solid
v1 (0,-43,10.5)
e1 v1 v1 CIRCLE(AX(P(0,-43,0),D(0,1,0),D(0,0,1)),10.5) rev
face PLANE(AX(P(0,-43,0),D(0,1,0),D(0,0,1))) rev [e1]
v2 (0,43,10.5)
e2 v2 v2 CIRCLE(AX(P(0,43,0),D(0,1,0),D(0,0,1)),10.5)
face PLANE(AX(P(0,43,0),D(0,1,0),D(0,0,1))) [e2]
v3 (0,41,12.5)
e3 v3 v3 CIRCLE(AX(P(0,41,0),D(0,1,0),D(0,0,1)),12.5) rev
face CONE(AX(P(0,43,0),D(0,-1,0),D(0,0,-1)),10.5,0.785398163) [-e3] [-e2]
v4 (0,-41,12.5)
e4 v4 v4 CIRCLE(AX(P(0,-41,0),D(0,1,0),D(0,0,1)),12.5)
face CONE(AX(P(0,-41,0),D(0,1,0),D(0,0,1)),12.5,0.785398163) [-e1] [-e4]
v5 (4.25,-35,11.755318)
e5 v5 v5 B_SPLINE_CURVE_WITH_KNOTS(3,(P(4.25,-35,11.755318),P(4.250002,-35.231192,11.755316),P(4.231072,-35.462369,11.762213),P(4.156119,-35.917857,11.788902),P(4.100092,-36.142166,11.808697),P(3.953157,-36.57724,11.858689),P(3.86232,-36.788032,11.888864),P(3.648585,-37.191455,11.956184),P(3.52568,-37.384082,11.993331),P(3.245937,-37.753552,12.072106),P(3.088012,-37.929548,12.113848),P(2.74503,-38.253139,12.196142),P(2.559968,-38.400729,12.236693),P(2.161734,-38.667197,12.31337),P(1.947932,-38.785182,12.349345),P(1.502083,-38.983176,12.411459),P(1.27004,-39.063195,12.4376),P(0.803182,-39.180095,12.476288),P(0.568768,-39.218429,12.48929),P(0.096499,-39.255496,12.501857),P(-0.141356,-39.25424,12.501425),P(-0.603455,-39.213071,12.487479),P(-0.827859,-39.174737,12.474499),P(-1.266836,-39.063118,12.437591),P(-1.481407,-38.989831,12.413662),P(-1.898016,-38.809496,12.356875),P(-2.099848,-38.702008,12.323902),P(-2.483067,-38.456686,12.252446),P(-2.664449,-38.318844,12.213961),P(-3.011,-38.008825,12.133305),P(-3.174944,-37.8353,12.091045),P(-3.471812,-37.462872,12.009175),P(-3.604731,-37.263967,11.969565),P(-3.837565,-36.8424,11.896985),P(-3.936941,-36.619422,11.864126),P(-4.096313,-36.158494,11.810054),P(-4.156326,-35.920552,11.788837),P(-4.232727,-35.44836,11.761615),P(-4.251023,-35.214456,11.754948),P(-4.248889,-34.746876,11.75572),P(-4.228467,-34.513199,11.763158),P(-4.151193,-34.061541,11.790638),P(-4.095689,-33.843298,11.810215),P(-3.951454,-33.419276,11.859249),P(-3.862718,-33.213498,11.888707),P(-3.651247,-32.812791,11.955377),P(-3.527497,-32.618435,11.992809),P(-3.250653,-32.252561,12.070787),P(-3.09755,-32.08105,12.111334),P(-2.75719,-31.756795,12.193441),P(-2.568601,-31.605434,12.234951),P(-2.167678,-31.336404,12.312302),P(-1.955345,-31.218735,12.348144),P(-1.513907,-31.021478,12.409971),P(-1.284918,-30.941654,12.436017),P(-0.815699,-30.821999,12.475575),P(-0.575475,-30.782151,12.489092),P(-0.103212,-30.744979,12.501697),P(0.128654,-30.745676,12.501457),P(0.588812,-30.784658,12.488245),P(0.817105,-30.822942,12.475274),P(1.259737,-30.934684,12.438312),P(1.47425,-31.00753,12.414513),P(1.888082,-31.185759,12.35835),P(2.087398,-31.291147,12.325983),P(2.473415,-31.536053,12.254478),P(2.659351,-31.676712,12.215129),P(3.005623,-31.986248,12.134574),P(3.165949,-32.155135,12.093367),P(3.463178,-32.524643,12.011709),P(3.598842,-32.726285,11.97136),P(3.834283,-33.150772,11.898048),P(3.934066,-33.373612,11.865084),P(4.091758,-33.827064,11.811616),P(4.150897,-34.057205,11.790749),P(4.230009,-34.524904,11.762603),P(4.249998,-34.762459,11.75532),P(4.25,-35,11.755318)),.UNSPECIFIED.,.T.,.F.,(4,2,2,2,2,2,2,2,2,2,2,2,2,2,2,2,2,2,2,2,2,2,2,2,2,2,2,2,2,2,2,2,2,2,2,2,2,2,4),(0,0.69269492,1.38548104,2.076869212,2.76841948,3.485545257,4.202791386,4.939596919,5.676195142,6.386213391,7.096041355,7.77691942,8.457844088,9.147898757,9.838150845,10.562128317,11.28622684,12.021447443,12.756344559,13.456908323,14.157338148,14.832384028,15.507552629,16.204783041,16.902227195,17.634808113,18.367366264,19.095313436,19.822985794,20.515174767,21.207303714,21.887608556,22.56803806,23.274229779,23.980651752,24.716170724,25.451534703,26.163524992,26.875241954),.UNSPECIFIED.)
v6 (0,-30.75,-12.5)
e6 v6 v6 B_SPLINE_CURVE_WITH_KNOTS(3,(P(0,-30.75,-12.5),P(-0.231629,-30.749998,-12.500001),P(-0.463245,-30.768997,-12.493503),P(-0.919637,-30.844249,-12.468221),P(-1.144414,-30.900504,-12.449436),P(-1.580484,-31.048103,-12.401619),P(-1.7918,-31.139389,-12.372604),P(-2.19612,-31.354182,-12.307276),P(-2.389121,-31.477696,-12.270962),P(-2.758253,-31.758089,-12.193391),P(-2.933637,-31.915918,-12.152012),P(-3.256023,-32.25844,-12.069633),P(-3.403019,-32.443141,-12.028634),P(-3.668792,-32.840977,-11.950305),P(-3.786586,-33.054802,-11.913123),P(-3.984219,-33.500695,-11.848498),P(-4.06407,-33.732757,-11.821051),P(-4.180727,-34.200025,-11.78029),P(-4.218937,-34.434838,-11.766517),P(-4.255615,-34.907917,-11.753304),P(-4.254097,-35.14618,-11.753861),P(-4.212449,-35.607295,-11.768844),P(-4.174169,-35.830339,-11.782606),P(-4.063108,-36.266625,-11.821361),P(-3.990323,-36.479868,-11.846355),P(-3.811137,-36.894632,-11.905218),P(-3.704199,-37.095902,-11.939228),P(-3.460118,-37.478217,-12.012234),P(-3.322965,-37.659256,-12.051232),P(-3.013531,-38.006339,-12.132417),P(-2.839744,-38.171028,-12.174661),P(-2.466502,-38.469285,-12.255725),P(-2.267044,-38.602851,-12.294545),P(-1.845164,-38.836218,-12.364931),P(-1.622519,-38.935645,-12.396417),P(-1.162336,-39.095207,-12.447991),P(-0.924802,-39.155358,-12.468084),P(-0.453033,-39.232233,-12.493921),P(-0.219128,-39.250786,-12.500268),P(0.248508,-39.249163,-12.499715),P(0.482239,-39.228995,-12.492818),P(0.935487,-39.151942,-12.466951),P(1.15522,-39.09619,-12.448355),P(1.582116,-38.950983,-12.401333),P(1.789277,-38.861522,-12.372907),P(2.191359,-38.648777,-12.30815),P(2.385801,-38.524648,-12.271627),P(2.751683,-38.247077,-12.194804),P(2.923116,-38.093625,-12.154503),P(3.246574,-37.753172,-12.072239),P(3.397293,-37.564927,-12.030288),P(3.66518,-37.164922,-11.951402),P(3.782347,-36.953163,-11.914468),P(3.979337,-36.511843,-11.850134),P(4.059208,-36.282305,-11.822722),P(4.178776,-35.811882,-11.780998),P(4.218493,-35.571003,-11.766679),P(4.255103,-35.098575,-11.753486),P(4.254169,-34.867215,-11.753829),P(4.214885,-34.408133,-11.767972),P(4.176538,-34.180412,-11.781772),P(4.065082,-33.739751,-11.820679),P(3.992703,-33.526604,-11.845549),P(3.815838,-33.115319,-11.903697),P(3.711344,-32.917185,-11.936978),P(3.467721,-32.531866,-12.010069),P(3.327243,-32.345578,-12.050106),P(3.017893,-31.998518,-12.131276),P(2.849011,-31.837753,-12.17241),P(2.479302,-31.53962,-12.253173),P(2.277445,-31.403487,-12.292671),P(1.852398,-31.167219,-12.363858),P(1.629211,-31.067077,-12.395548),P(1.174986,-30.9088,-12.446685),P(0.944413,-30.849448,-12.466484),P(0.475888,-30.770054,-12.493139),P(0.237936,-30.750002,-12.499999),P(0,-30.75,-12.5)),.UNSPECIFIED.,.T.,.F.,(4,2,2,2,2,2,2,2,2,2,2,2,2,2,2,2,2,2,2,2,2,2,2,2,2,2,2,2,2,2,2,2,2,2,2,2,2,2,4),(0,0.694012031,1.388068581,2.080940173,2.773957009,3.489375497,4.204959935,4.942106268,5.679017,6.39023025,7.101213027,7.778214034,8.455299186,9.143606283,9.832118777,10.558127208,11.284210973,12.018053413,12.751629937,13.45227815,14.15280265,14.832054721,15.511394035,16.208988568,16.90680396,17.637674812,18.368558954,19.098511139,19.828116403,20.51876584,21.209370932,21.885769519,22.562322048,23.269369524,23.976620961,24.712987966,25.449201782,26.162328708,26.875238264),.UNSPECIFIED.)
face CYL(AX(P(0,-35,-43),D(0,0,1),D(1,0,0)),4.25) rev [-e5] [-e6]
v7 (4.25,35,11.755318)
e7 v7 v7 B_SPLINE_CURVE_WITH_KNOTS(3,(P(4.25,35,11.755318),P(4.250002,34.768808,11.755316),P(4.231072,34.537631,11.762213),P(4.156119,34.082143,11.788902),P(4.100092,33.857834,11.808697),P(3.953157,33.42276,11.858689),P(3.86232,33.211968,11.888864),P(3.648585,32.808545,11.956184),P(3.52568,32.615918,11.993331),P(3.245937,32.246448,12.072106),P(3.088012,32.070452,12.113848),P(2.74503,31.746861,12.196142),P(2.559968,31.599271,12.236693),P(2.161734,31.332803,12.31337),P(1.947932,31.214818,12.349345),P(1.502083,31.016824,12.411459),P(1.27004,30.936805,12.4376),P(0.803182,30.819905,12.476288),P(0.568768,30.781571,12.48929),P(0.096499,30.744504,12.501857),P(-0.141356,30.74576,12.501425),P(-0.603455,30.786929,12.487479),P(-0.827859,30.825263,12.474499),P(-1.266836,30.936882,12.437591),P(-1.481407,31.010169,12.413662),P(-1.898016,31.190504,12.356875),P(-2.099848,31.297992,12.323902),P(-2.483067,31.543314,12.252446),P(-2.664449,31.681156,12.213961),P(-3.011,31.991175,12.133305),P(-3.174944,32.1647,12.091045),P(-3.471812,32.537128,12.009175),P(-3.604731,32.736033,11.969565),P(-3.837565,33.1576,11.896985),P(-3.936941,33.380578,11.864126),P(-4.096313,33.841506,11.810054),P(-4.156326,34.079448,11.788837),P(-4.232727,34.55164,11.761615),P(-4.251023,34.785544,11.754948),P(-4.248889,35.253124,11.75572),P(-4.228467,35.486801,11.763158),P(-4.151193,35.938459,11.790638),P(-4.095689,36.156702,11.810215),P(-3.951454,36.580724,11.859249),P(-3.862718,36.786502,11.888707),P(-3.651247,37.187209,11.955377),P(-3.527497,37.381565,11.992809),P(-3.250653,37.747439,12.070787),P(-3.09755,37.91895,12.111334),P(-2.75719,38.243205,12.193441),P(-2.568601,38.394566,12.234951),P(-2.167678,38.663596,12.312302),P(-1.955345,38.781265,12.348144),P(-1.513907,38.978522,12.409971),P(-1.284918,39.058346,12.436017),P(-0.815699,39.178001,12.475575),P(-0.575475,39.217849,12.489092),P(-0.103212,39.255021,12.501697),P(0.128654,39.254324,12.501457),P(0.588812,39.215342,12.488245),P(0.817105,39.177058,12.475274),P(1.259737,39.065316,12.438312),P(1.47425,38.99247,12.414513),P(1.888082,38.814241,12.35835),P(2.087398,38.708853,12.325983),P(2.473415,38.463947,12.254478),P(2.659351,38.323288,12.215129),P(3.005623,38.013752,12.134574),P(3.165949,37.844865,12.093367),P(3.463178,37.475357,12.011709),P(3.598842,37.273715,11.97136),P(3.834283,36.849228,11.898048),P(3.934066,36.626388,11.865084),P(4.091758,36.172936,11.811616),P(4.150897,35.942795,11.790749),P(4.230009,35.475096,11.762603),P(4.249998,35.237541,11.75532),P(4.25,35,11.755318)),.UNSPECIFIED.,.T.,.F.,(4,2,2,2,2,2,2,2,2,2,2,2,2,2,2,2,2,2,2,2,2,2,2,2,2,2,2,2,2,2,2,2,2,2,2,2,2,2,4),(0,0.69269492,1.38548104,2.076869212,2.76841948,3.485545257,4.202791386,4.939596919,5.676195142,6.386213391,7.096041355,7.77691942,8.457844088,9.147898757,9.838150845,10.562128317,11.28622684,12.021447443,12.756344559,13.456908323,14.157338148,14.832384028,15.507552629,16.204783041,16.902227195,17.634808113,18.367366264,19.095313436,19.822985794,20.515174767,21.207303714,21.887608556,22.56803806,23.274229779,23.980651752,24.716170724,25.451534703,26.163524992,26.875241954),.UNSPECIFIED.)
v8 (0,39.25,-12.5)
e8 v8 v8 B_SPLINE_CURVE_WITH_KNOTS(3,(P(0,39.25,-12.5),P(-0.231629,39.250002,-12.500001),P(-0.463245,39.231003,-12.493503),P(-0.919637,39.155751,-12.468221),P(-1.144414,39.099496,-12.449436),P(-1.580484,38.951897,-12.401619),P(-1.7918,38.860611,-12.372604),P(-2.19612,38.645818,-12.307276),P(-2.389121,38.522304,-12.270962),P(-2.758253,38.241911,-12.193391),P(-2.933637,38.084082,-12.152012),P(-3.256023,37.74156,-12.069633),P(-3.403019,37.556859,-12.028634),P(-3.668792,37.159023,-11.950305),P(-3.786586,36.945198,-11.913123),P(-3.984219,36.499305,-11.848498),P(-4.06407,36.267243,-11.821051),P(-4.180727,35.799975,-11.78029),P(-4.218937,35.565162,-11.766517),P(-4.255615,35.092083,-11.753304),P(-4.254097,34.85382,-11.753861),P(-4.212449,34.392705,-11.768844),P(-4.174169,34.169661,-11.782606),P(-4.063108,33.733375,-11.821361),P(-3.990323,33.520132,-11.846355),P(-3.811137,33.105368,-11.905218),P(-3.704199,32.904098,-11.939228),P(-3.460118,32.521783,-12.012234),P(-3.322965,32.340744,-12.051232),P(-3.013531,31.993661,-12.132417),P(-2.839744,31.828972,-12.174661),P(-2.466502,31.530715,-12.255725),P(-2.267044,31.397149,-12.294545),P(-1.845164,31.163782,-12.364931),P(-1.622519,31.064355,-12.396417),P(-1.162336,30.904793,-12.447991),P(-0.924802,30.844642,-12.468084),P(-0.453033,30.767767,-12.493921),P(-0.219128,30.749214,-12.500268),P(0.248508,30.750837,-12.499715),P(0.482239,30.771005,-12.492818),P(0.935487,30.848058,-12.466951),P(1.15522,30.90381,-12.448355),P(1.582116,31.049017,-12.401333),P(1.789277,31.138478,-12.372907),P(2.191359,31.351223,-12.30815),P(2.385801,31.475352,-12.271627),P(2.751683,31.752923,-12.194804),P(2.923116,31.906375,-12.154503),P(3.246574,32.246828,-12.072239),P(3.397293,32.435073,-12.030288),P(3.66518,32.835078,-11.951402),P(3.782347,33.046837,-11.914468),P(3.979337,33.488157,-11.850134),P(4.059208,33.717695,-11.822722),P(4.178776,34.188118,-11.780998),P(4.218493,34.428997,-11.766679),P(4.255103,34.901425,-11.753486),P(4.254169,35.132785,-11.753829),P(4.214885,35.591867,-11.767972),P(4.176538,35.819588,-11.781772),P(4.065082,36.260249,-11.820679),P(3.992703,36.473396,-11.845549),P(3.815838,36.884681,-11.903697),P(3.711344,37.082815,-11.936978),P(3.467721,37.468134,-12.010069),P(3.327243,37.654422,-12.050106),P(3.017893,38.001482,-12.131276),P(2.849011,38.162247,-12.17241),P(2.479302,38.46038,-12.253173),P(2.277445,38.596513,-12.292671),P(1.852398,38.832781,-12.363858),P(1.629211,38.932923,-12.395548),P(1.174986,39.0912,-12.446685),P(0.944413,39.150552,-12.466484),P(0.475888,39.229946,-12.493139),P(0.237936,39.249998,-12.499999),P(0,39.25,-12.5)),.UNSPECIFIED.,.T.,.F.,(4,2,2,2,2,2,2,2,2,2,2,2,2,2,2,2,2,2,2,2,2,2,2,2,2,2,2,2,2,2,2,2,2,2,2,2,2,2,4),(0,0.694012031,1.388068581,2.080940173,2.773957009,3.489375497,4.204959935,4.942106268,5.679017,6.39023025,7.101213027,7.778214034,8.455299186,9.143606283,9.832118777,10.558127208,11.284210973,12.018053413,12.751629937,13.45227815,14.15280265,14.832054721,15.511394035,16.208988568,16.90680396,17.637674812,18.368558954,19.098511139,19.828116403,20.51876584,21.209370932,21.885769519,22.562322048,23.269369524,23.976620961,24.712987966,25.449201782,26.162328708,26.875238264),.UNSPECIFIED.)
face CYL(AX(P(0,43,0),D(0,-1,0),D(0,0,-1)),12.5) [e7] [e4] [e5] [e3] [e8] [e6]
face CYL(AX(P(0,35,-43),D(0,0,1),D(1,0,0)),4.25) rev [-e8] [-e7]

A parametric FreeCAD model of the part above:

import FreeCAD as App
import Part
import Sketcher

V = App.Vector


def edges_at(feature, points):
    """Names of the edges that pass closest to the given points."""
    edges = feature.Shape.Edges
    near = lambda p: min(range(len(edges)), key=lambda i: edges[i].distToShape(Part.Vertex(*p))[0])
    return sorted({f"Edge{near(p) + 1}" for p in points})

doc = App.newDocument("Part")
body = doc.addObject("PartDesign::Body", "Body")

sketch1 = body.newObject("Sketcher::SketchObject", "Sketch")
sketch1.AttachmentSupport = (doc.getObject("XZ_Plane"), [""])
sketch1.MapMode = "FlatFace"
sketch1.addGeometry(Part.Circle(V(0, 0, 0), V(0, 0, 1), 12), False)
sketch1.addConstraint([
    Sketcher.Constraint("Coincident", 0, 3, -1, 1),
    Sketcher.Constraint("Diameter", 0, 25.0),
])
pad1 = body.newObject("PartDesign::Pad", "Pad")
pad1.Profile = sketch1
pad1.Length = 86
pad1.Midplane = True
doc.recompute()

chamfer = body.newObject("PartDesign::Chamfer", "Chamfer")
chamfer.Base = (pad1, edges_at(pad1, [(0, -43, -12.5), (0, 43, -12.5)]))
chamfer.Size = 2

sketch2 = body.newObject("Sketcher::SketchObject", "Sketch001")
sketch2.AttachmentSupport = (doc.getObject("XY_Plane"), [""])
sketch2.MapMode = "FlatFace"
sketch2.addGeometry([
    Part.Circle(V(0, 35, 0), V(0, 0, 1), 4.2),
    Part.Circle(V(0, -35, 0), V(0, 0, 1), 4.2),
], False)
sketch2.addConstraint([
    Sketcher.Constraint("Equal", 0, 1),
    Sketcher.Constraint("Symmetric", 0, 3, 1, 3, -1, 1),
    Sketcher.Constraint("PointOnObject", 0, 3, -2),
    Sketcher.Constraint("Diameter", 0, 8.5),
    Sketcher.Constraint("DistanceY", -1, 1, 0, 3, 35.0),
])
pocket1 = body.newObject("PartDesign::Pocket", "Pocket")
pocket1.Profile = sketch2
pocket1.Length = 86
pocket1.Midplane = True

doc.recompute()
